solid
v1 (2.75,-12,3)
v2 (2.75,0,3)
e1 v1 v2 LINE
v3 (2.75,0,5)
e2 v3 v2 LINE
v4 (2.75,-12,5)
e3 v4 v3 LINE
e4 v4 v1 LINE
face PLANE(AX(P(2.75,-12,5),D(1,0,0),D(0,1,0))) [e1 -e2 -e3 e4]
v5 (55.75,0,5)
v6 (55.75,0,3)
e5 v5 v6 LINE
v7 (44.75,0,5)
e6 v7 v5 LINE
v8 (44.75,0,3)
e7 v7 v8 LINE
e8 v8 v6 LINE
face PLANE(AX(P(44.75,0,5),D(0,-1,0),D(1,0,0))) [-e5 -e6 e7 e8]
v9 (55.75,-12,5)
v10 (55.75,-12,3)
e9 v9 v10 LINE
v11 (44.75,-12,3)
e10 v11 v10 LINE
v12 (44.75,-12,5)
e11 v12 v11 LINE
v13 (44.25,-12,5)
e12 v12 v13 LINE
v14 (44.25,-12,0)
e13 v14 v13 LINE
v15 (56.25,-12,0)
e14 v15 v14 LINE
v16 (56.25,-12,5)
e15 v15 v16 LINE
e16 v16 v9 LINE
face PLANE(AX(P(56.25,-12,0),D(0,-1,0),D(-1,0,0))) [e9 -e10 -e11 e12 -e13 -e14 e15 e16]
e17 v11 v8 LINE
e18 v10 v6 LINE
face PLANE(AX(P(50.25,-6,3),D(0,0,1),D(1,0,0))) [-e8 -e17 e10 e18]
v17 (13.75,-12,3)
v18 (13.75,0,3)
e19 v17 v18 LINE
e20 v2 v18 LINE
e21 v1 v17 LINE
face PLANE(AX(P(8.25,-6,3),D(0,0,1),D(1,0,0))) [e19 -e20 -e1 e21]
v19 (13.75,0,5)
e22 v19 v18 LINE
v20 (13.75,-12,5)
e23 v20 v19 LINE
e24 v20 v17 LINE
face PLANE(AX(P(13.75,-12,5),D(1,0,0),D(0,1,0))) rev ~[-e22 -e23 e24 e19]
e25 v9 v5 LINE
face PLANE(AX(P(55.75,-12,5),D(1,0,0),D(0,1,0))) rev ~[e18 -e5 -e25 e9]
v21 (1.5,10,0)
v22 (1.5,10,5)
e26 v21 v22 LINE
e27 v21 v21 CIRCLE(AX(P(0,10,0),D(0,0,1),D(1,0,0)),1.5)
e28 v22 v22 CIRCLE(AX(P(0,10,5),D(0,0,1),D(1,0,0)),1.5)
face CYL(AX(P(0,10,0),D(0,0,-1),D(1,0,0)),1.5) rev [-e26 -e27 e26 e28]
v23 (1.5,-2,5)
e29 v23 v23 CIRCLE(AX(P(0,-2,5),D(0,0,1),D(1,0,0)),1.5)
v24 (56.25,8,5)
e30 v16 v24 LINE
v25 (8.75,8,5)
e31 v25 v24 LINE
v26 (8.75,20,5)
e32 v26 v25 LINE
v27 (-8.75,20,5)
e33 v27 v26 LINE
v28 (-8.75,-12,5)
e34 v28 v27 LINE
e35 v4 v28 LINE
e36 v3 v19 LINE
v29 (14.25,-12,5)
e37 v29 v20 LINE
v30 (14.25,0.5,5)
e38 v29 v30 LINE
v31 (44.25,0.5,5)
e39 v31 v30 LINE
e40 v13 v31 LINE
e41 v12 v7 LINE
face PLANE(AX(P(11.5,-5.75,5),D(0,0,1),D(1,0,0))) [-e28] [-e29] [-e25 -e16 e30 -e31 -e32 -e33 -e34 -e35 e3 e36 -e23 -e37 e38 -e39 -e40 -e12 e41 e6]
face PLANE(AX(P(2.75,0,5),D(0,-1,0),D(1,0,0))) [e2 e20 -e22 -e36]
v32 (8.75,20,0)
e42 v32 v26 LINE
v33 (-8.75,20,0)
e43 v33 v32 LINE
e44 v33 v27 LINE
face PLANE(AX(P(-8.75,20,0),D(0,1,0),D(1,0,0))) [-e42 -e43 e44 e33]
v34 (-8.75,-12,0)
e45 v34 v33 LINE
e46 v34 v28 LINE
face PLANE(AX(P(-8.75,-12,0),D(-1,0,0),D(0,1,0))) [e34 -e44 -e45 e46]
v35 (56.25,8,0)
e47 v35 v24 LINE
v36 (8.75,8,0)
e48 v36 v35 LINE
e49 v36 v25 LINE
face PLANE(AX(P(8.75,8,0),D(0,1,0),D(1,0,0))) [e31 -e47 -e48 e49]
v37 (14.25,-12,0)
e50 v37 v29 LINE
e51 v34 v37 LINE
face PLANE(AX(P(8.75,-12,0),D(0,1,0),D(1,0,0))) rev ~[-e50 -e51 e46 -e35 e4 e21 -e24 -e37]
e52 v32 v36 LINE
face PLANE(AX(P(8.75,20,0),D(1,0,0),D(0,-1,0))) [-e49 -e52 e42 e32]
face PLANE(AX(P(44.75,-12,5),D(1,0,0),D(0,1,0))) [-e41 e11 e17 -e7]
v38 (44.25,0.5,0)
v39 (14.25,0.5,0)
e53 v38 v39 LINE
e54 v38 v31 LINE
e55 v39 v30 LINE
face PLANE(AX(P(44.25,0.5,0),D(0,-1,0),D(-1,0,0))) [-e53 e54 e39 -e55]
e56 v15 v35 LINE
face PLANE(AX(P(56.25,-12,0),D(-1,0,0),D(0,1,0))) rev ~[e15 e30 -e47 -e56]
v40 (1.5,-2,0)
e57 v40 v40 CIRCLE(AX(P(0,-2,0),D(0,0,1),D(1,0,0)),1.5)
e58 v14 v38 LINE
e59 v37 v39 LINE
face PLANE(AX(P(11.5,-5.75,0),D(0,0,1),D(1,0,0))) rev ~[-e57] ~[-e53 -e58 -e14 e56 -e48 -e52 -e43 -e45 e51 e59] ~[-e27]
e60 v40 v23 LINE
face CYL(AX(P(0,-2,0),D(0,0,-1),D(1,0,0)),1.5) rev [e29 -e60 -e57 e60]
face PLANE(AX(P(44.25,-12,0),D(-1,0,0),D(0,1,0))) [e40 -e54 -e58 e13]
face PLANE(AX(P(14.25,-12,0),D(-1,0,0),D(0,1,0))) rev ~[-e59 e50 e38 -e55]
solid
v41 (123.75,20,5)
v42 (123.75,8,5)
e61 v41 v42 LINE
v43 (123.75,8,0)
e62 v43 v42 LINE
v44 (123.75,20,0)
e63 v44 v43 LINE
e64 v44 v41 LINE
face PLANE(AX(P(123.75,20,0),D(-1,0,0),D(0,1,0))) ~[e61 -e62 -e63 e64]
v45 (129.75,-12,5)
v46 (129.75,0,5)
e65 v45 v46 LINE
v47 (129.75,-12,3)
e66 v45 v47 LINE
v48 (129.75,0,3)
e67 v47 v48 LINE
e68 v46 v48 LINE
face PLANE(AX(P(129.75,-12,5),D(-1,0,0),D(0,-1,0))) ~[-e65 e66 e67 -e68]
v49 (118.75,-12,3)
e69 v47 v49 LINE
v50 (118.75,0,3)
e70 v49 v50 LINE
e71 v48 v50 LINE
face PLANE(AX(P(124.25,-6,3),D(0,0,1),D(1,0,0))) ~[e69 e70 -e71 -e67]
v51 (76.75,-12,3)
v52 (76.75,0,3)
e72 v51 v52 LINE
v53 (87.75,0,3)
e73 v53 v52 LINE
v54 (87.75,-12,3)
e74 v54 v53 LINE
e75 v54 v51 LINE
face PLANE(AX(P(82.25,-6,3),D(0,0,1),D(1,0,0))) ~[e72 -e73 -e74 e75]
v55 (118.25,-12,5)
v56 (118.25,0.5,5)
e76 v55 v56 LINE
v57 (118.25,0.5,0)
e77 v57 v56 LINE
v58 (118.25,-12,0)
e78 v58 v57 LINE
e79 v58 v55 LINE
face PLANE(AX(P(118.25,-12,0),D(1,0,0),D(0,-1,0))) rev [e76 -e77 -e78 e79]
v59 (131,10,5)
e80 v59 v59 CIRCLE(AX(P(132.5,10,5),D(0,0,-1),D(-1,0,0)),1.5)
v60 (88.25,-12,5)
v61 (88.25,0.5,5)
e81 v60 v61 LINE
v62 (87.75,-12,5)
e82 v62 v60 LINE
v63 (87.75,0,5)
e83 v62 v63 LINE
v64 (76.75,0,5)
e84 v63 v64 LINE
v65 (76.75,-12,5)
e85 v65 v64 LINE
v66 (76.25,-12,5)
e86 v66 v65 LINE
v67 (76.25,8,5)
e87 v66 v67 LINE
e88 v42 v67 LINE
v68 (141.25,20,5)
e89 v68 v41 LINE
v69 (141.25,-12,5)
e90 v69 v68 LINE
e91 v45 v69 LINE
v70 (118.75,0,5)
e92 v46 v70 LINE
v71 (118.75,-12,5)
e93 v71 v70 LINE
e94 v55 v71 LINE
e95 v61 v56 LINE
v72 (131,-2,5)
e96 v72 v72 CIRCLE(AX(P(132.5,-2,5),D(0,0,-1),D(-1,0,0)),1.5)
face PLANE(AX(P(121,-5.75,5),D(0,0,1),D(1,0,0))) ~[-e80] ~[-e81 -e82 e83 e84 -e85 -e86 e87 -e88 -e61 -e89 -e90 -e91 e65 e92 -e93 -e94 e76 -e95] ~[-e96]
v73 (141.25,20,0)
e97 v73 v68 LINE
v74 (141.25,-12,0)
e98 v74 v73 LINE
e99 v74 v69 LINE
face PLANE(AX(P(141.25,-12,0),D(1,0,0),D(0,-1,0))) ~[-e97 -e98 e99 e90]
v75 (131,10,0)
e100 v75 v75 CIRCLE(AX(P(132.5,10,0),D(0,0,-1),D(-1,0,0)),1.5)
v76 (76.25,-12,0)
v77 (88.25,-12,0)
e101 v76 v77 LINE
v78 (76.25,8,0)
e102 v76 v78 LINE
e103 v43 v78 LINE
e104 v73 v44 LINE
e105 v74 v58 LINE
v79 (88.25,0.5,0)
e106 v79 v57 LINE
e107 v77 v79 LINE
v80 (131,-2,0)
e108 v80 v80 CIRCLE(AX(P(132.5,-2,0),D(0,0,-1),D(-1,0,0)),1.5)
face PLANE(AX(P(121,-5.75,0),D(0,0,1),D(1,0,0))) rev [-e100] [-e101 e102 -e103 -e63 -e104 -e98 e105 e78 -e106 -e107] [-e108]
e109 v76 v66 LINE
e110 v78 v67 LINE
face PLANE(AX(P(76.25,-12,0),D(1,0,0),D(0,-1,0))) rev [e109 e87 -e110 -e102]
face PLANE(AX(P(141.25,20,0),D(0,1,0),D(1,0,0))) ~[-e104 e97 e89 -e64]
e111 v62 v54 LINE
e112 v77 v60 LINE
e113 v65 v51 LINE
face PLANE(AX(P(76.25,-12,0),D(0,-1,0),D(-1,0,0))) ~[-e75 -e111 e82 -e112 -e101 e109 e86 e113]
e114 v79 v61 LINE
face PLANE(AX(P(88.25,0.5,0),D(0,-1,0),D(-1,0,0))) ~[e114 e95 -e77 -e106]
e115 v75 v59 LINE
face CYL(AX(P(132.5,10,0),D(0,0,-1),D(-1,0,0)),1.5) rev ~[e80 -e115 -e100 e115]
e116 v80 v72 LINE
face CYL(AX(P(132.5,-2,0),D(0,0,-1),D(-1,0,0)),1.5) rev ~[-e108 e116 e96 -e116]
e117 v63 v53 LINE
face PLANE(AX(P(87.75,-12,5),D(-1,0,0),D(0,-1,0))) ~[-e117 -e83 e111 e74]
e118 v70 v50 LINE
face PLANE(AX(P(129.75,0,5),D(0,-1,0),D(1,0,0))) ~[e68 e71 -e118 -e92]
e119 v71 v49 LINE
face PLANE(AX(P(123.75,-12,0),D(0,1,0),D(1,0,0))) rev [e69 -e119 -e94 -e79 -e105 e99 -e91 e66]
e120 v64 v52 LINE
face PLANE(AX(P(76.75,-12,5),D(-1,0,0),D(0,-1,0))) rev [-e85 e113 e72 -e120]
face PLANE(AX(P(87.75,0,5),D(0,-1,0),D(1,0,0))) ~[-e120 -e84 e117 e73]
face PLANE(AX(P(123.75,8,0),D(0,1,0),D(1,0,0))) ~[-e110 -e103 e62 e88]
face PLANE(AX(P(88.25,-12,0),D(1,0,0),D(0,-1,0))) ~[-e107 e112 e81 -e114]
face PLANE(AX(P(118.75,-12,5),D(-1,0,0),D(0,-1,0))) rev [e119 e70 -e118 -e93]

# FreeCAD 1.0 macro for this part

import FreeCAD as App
import Part
import Sketcher
from FreeCAD import Vector
Q = App.Units.Quantity


def add_polygon(sketch, points):
    """Adds a closed chain of lines whose ends are joined by coincident constraints."""
    first, n = sketch.GeometryCount, len(points)
    for a, b in zip(points, points[1:] + points[:1]):
        sketch.addGeometry(Part.LineSegment(App.Vector(*a, 0), App.Vector(*b, 0)), False)
    for i in range(n):
        sketch.addConstraint(Sketcher.Constraint("Coincident", first + i, 2, first + (i + 1) % n, 1))

doc = App.newDocument("Part")
params = doc.addObject("Spreadsheet::Sheet", "Params")
for row, (alias, value) in enumerate([
    ("sketch1_diameter", "3 mm"),
    ("sketch1_width", "12 mm"),
    ("sketch1_width2", "23 mm"),
    ("sketch1_width3", "30 mm"),
    ("sketch1_height", "20 mm"),
    ("pad1_length", "5 mm"),
    ("sketch2_width", "11 mm"),
    ("sketch2_height", "12 mm"),
    ("pocket1_length", "2 mm"),
], start=1):
    params.set(f"A{row}", alias)
    params.set(f"B{row}", "=" + value)
    params.setAlias(f"B{row}", alias)

body = doc.addObject("PartDesign::Body", "Body")

sketch1 = body.newObject("Sketcher::SketchObject", "Sketch")
sketch1.AttachmentSupport = (doc.getObject("XY_Plane"), [""])
sketch1.MapMode = "FlatFace"
add_polygon(sketch1, [(44.25, 0.5), (44.25, -12), (56.25, -12), (56.25, 8), (8.75, 8), (8.75, 20), (-8.75, 20), (-8.75, -12), (14.25, -12), (14.25, 0.5)])
sketch1.addGeometry(Part.Circle(Vector(0, -2, 0), Vector(0, 0, 1), 1.5), False)
sketch1.addGeometry(Part.Circle(Vector(0, 10, 0), Vector(0, 0, 1), 1.5), False)
sketch1.addConstraint([
    Sketcher.Constraint("Vertical", 0),
    Sketcher.Constraint("Horizontal", 1),
    Sketcher.Constraint("Vertical", 2),
    Sketcher.Constraint("Horizontal", 3),
    Sketcher.Constraint("Vertical", 4),
    Sketcher.Constraint("Horizontal", 5),
    Sketcher.Constraint("Vertical", 6),
    Sketcher.Constraint("Horizontal", 7),
    Sketcher.Constraint("Vertical", 8),
    Sketcher.Constraint("Horizontal", 9),
    Sketcher.Constraint("Equal", 10, 11),
    Sketcher.Constraint("PointOnObject", 10, 3, -2),
    Sketcher.Constraint("PointOnObject", 11, 3, -2),
    Sketcher.Constraint("Horizontal", 1, 2, 6, 2),
    Sketcher.Constraint("Equal", 1, 4),
    Sketcher.Constraint("Diameter", 10, Q("3 mm")),
    Sketcher.Constraint("DistanceX", 1, 1, 1, 2, Q("12 mm")),
    Sketcher.Constraint("DistanceX", 7, 1, 7, 2, Q("23 mm")),
    Sketcher.Constraint("DistanceX", 9, 1, 9, 2, Q("30 mm")),
    Sketcher.Constraint("DistanceY", 2, 1, 2, 2, Q("20 mm")),
    Sketcher.Constraint("DistanceX", 3, 2, 3, 1, Q("47.5 mm")),
    Sketcher.Constraint("DistanceY", 0, 2, 0, 1, Q("12.5 mm")),
    Sketcher.Constraint("DistanceY", 10, 3, -1, 1, Q("2 mm")),
    Sketcher.Constraint("DistanceY", -1, 1, 11, 3, Q("10 mm")),
    Sketcher.Constraint("DistanceY", 0, 2, -1, 1, Q("12 mm")),
    Sketcher.Constraint("DistanceX", -1, 1, 0, 2, Q("44.25 mm")),
])
sketch1.setExpression("Constraints[25]", "Params.sketch1_diameter")
sketch1.setExpression("Constraints[26]", "Params.sketch1_width")
sketch1.setExpression("Constraints[27]", "Params.sketch1_width2")
sketch1.setExpression("Constraints[28]", "Params.sketch1_width3")
sketch1.setExpression("Constraints[29]", "Params.sketch1_height")
pad1 = body.newObject("PartDesign::Pad", "Pad")
pad1.Profile = sketch1
pad1.setExpression("Length", "Params.pad1_length")

sketch2 = body.newObject("Sketcher::SketchObject", "Sketch001")
sketch2.AttachmentSupport = (doc.getObject("XY_Plane"), [""])
sketch2.MapMode = "FlatFace"
sketch2.AttachmentOffset = App.Placement(Vector(0, 0, 5), App.Rotation())
add_polygon(sketch2, [(44.75, 0), (44.75, -12), (55.75, -12), (55.75, 0)])
add_polygon(sketch2, [(2.75, 0), (2.75, -12), (13.75, -12), (13.75, 0)])
sketch2.addConstraint([
    Sketcher.Constraint("Vertical", 0),
    Sketcher.Constraint("Horizontal", 1),
    Sketcher.Constraint("Vertical", 2),
    Sketcher.Constraint("Horizontal", 3),
    Sketcher.Constraint("Vertical", 4),
    Sketcher.Constraint("Horizontal", 5),
    Sketcher.Constraint("Vertical", 6),
    Sketcher.Constraint("Horizontal", 7),
    Sketcher.Constraint("PointOnObject", 2, 2, -1),
    Sketcher.Constraint("PointOnObject", 6, 2, -1),
    Sketcher.Constraint("Horizontal", 1, 2, 4, 2),
    Sketcher.Constraint("Equal", 3, 5),
    Sketcher.Constraint("DistanceX", 1, 1, 1, 2, Q("11 mm")),
    Sketcher.Constraint("DistanceY", 0, 2, 0, 1, Q("12 mm")),
    Sketcher.Constraint("DistanceX", 4, 2, 0, 2, Q("42 mm")),
    Sketcher.Constraint("DistanceX", -1, 1, 0, 2, Q("44.75 mm")),
])
sketch2.setExpression("Constraints[20]", "Params.sketch2_width")
sketch2.setExpression("Constraints[21]", "Params.sketch2_height")
pocket1 = body.newObject("PartDesign::Pocket", "Pocket")
pocket1.Profile = sketch2
pocket1.setExpression("Length", "Params.pocket1_length")
body2 = doc.addObject("PartDesign::Body", "Body001")
doc.recompute()

mirroring = doc.addObject("Part::Mirroring", "Mirroring")
mirroring.Source = body
mirroring.Base = Vector(66.25, 0, 0)
mirroring.Normal = Vector(1, 0, 0)
body2.BaseFeature = mirroring
doc.recompute()
mirroring.Visibility = False

doc.recompute()
